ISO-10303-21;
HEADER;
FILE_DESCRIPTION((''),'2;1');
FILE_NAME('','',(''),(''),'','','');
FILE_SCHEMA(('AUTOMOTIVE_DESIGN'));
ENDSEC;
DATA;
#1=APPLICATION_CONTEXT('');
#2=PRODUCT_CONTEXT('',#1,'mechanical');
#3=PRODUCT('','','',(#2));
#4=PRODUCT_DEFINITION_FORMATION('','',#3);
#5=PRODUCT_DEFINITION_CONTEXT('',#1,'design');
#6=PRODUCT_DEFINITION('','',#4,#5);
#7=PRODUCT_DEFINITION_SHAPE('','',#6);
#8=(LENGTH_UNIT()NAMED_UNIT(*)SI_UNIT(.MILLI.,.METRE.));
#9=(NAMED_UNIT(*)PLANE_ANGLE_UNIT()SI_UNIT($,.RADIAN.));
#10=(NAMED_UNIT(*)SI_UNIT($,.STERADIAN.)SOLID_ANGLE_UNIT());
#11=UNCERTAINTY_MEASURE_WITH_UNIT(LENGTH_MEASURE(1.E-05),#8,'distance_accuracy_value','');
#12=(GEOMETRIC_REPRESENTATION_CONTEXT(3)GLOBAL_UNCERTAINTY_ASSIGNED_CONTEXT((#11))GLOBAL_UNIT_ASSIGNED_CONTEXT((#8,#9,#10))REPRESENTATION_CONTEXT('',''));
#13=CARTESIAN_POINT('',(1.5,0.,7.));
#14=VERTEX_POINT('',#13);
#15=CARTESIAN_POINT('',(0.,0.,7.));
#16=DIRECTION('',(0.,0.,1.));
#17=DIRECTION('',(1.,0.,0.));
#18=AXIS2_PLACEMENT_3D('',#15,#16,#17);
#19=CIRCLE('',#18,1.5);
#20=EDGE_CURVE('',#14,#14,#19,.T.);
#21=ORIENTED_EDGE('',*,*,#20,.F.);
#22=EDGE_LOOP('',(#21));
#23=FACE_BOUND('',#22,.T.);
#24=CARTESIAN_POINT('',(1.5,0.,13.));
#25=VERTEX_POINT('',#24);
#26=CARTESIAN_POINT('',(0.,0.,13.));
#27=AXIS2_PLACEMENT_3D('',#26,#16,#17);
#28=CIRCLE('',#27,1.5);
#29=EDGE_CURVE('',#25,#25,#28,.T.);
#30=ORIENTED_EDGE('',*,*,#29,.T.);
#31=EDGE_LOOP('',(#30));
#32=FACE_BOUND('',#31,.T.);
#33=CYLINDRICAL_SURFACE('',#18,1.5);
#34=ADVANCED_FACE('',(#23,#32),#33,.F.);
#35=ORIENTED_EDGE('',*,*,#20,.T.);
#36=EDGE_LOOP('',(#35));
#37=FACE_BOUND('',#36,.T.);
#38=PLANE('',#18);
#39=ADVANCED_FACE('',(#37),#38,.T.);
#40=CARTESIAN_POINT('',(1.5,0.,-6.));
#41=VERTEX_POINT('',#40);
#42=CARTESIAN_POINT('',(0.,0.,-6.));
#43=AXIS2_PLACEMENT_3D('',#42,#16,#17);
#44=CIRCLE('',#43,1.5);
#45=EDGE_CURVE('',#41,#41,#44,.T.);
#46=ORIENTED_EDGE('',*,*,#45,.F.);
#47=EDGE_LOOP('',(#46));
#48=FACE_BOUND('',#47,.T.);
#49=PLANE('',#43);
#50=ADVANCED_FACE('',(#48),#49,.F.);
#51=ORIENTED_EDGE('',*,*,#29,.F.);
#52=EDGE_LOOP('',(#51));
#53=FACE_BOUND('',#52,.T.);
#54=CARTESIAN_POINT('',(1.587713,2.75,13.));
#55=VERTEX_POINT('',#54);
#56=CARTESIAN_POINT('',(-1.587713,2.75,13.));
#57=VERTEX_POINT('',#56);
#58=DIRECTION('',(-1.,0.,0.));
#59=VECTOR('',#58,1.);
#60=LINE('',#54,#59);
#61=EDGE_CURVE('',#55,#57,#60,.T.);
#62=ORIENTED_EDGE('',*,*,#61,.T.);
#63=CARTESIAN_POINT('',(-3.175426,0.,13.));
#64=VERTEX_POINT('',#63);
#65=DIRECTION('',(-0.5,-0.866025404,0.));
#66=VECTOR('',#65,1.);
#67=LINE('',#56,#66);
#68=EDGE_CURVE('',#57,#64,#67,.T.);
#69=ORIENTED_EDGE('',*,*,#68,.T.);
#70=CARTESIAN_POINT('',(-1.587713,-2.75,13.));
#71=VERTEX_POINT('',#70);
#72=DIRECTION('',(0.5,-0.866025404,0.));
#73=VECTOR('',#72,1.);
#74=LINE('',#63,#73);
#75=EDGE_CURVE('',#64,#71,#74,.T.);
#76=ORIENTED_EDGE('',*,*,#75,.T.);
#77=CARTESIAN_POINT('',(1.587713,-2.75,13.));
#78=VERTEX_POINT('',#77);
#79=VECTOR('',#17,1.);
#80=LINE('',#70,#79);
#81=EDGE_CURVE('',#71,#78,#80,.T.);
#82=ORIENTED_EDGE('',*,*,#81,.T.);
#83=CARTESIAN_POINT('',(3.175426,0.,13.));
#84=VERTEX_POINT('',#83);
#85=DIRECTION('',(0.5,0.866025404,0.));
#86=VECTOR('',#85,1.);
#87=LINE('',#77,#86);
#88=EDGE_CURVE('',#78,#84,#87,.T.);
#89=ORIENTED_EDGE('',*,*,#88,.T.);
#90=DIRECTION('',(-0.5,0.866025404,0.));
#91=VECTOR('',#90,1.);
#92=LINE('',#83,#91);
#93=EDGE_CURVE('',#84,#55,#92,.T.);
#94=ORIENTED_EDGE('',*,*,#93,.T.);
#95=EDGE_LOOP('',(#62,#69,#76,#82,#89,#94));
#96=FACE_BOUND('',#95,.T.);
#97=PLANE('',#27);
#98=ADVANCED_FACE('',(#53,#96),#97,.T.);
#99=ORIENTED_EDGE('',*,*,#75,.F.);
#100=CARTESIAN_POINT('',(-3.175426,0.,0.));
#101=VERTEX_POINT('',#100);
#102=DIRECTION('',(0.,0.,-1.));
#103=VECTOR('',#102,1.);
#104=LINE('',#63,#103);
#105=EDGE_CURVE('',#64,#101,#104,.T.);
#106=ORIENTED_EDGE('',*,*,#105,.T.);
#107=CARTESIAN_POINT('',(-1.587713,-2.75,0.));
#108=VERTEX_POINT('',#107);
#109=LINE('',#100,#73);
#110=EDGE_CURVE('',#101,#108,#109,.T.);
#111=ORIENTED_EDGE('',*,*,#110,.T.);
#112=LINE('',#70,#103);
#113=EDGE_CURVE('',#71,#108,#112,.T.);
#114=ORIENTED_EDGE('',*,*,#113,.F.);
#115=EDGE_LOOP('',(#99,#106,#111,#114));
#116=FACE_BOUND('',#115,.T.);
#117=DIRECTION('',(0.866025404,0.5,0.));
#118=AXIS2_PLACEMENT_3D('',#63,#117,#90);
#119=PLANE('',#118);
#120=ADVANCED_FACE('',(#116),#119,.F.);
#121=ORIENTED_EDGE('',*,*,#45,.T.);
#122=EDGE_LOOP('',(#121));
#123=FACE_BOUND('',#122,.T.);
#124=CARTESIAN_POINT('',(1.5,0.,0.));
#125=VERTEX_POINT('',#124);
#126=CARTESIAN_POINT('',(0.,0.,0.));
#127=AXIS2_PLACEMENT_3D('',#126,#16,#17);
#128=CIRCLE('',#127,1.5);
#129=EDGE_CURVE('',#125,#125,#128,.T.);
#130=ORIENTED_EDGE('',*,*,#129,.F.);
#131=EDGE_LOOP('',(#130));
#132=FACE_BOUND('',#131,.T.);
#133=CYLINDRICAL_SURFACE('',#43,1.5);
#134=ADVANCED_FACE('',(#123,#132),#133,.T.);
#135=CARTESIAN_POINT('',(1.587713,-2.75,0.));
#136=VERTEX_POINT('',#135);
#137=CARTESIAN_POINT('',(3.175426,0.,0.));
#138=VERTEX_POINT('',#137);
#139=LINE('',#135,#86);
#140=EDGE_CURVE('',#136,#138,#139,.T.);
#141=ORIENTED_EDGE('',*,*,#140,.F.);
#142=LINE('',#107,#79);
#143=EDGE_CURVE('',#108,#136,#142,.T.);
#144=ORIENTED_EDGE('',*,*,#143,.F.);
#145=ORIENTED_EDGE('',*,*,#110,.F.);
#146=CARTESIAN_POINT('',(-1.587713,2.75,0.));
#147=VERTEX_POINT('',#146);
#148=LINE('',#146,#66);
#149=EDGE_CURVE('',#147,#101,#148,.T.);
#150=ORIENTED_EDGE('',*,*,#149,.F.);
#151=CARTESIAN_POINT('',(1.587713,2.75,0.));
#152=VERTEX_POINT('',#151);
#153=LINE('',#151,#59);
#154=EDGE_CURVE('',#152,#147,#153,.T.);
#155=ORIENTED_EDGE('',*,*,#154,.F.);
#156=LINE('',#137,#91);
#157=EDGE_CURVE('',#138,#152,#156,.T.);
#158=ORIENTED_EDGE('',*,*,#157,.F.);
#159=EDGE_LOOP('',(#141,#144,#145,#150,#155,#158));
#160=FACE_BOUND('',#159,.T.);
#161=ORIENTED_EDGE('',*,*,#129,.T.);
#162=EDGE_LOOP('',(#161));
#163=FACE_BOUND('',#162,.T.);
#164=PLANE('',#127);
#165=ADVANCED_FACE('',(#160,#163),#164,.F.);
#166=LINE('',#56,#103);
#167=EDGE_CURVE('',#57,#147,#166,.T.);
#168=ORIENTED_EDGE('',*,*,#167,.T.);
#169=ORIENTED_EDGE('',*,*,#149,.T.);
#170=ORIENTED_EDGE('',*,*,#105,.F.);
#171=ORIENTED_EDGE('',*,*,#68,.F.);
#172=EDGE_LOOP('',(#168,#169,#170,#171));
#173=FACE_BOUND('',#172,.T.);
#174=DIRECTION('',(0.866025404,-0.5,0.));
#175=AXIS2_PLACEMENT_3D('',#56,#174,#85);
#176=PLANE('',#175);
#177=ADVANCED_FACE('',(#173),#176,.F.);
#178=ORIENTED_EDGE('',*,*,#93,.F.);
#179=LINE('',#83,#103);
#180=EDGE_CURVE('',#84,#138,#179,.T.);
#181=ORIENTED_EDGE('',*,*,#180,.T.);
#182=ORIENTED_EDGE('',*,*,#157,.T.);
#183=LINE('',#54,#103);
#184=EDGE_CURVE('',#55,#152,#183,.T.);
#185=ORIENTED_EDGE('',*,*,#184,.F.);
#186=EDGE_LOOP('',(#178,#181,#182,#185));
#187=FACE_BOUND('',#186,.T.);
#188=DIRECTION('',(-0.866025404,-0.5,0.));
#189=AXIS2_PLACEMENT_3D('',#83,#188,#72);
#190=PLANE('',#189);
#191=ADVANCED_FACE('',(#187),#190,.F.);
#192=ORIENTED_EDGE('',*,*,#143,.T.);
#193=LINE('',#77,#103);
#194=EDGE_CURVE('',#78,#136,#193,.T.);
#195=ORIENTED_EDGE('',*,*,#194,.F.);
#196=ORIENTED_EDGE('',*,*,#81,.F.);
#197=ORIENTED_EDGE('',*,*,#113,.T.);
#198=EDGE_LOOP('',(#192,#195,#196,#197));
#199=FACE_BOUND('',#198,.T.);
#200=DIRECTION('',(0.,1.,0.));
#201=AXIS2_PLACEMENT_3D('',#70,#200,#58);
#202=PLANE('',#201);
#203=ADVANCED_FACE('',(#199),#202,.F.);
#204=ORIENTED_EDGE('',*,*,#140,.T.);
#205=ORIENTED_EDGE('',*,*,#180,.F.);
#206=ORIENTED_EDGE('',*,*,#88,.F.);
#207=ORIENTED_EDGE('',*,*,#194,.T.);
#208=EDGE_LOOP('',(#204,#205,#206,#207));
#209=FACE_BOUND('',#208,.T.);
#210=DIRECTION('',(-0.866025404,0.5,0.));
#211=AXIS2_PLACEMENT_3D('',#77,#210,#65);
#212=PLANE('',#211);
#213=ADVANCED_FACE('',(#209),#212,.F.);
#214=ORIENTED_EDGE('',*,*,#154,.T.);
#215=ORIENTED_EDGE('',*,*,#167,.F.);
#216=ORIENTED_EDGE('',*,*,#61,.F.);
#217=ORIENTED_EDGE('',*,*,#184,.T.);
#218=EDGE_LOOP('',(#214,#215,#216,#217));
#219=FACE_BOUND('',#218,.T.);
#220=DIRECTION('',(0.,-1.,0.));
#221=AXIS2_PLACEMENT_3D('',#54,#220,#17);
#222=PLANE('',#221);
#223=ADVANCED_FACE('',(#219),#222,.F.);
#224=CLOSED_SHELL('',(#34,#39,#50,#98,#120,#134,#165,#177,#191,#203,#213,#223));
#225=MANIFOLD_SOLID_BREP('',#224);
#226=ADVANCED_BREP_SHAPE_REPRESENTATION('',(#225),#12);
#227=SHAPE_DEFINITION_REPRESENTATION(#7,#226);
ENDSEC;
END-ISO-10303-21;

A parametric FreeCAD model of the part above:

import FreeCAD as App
import Part
import Sketcher
from FreeCAD import Vector
Q = App.Units.Quantity

doc = App.newDocument("Part")
body = doc.addObject("PartDesign::Body", "Body")

# Sketch on XY plane
sketch1 = body.newObject("Sketcher::SketchObject", "Sketch")
sketch1.AttachmentSupport = (doc.getObject("XY_Plane"), [""])
sketch1.MapMode = "FlatFace"
sketch1.addGeometry(Part.LineSegment(Vector(1.6, -2.8, 0), Vector(3.2, 0, 0)), False)
sketch1.addGeometry(Part.LineSegment(Vector(3.2, 0, 0), Vector(1.6, 2.8, 0)), False)
sketch1.addGeometry(Part.LineSegment(Vector(1.6, 2.8, 0), Vector(-1.6, 2.8, 0)), False)
sketch1.addGeometry(Part.LineSegment(Vector(-1.6, 2.8, 0), Vector(-3.2, 0, 0)), False)
sketch1.addGeometry(Part.LineSegment(Vector(-3.2, 0, 0), Vector(-1.6, -2.8, 0)), False)
sketch1.addGeometry(Part.LineSegment(Vector(-1.6, -2.8, 0), Vector(1.6, -2.8, 0)), False)
sketch1.addConstraint(Sketcher.Constraint("Coincident", 0, 2, 1, 1))
sketch1.addConstraint(Sketcher.Constraint("Coincident", 1, 2, 2, 1))
sketch1.addConstraint(Sketcher.Constraint("Coincident", 2, 2, 3, 1))
sketch1.addConstraint(Sketcher.Constraint("Coincident", 3, 2, 4, 1))
sketch1.addConstraint(Sketcher.Constraint("Coincident", 4, 2, 5, 1))
sketch1.addConstraint(Sketcher.Constraint("Coincident", 5, 2, 0, 1))
sketch1.addConstraint(Sketcher.Constraint("Horizontal", 2))
sketch1.addConstraint(Sketcher.Constraint("Horizontal", 5))
sketch1.addConstraint(Sketcher.Constraint("Symmetric", 0, 2, 3, 2, -1, 1))
sketch1.addConstraint(Sketcher.Constraint("Symmetric", 1, 2, 4, 2, -1, 1))
sketch1.addConstraint(Sketcher.Constraint("PointOnObject", 0, 2, -1))
sketch1.addConstraint(Sketcher.Constraint("Parallel", 0, 3))
sketch1.addConstraint(Sketcher.Constraint("Vertical", 2, 2, 4, 2))
sketch1.addConstraint(Sketcher.Constraint("Angle", 0, Q("60 deg")))
sketch1.addConstraint(Sketcher.Constraint("DistanceY", 4, 2, 2, 2, Q("5.5 mm")))
sketch1.addConstraint(Sketcher.Constraint("DistanceX", 2, 2, 2, 1, Q("3.175426 mm")))
pad1 = body.newObject("PartDesign::Pad", "Pad")
pad1.Profile = sketch1
pad1.Length = 13

# Sketch on XY plane
sketch2 = body.newObject("Sketcher::SketchObject", "Sketch001")
sketch2.AttachmentSupport = (doc.getObject("XY_Plane"), [""])
sketch2.MapMode = "FlatFace"
sketch2.addGeometry(Part.Circle(Vector(0, 0, 0), Vector(0, 0, 1), 1.5), False)
sketch2.addConstraint(Sketcher.Constraint("Coincident", 0, 3, -1, 1))
sketch2.addConstraint(Sketcher.Constraint("Diameter", 0, Q("3 mm")))
pad2 = body.newObject("PartDesign::Pad", "Pad001")
pad2.Profile = sketch2
pad2.Length = 6
pad2.Reversed = True

# Sketch on XY plane
sketch3 = body.newObject("Sketcher::SketchObject", "Sketch002")
sketch3.AttachmentSupport = (doc.getObject("XY_Plane"), [""])
sketch3.MapMode = "FlatFace"
sketch3.AttachmentOffset = App.Placement(Vector(0, 0, 13), App.Rotation())
sketch3.addGeometry(Part.Circle(Vector(0, 0, 0), Vector(0, 0, 1), 1.5), False)
sketch3.addConstraint(Sketcher.Constraint("Coincident", 0, 3, -1, 1))
sketch3.addConstraint(Sketcher.Constraint("Diameter", 0, Q("3 mm")))
pocket1 = body.newObject("PartDesign::Pocket", "Pocket")
pocket1.Profile = sketch3
pocket1.Length = 6

doc.recompute()
